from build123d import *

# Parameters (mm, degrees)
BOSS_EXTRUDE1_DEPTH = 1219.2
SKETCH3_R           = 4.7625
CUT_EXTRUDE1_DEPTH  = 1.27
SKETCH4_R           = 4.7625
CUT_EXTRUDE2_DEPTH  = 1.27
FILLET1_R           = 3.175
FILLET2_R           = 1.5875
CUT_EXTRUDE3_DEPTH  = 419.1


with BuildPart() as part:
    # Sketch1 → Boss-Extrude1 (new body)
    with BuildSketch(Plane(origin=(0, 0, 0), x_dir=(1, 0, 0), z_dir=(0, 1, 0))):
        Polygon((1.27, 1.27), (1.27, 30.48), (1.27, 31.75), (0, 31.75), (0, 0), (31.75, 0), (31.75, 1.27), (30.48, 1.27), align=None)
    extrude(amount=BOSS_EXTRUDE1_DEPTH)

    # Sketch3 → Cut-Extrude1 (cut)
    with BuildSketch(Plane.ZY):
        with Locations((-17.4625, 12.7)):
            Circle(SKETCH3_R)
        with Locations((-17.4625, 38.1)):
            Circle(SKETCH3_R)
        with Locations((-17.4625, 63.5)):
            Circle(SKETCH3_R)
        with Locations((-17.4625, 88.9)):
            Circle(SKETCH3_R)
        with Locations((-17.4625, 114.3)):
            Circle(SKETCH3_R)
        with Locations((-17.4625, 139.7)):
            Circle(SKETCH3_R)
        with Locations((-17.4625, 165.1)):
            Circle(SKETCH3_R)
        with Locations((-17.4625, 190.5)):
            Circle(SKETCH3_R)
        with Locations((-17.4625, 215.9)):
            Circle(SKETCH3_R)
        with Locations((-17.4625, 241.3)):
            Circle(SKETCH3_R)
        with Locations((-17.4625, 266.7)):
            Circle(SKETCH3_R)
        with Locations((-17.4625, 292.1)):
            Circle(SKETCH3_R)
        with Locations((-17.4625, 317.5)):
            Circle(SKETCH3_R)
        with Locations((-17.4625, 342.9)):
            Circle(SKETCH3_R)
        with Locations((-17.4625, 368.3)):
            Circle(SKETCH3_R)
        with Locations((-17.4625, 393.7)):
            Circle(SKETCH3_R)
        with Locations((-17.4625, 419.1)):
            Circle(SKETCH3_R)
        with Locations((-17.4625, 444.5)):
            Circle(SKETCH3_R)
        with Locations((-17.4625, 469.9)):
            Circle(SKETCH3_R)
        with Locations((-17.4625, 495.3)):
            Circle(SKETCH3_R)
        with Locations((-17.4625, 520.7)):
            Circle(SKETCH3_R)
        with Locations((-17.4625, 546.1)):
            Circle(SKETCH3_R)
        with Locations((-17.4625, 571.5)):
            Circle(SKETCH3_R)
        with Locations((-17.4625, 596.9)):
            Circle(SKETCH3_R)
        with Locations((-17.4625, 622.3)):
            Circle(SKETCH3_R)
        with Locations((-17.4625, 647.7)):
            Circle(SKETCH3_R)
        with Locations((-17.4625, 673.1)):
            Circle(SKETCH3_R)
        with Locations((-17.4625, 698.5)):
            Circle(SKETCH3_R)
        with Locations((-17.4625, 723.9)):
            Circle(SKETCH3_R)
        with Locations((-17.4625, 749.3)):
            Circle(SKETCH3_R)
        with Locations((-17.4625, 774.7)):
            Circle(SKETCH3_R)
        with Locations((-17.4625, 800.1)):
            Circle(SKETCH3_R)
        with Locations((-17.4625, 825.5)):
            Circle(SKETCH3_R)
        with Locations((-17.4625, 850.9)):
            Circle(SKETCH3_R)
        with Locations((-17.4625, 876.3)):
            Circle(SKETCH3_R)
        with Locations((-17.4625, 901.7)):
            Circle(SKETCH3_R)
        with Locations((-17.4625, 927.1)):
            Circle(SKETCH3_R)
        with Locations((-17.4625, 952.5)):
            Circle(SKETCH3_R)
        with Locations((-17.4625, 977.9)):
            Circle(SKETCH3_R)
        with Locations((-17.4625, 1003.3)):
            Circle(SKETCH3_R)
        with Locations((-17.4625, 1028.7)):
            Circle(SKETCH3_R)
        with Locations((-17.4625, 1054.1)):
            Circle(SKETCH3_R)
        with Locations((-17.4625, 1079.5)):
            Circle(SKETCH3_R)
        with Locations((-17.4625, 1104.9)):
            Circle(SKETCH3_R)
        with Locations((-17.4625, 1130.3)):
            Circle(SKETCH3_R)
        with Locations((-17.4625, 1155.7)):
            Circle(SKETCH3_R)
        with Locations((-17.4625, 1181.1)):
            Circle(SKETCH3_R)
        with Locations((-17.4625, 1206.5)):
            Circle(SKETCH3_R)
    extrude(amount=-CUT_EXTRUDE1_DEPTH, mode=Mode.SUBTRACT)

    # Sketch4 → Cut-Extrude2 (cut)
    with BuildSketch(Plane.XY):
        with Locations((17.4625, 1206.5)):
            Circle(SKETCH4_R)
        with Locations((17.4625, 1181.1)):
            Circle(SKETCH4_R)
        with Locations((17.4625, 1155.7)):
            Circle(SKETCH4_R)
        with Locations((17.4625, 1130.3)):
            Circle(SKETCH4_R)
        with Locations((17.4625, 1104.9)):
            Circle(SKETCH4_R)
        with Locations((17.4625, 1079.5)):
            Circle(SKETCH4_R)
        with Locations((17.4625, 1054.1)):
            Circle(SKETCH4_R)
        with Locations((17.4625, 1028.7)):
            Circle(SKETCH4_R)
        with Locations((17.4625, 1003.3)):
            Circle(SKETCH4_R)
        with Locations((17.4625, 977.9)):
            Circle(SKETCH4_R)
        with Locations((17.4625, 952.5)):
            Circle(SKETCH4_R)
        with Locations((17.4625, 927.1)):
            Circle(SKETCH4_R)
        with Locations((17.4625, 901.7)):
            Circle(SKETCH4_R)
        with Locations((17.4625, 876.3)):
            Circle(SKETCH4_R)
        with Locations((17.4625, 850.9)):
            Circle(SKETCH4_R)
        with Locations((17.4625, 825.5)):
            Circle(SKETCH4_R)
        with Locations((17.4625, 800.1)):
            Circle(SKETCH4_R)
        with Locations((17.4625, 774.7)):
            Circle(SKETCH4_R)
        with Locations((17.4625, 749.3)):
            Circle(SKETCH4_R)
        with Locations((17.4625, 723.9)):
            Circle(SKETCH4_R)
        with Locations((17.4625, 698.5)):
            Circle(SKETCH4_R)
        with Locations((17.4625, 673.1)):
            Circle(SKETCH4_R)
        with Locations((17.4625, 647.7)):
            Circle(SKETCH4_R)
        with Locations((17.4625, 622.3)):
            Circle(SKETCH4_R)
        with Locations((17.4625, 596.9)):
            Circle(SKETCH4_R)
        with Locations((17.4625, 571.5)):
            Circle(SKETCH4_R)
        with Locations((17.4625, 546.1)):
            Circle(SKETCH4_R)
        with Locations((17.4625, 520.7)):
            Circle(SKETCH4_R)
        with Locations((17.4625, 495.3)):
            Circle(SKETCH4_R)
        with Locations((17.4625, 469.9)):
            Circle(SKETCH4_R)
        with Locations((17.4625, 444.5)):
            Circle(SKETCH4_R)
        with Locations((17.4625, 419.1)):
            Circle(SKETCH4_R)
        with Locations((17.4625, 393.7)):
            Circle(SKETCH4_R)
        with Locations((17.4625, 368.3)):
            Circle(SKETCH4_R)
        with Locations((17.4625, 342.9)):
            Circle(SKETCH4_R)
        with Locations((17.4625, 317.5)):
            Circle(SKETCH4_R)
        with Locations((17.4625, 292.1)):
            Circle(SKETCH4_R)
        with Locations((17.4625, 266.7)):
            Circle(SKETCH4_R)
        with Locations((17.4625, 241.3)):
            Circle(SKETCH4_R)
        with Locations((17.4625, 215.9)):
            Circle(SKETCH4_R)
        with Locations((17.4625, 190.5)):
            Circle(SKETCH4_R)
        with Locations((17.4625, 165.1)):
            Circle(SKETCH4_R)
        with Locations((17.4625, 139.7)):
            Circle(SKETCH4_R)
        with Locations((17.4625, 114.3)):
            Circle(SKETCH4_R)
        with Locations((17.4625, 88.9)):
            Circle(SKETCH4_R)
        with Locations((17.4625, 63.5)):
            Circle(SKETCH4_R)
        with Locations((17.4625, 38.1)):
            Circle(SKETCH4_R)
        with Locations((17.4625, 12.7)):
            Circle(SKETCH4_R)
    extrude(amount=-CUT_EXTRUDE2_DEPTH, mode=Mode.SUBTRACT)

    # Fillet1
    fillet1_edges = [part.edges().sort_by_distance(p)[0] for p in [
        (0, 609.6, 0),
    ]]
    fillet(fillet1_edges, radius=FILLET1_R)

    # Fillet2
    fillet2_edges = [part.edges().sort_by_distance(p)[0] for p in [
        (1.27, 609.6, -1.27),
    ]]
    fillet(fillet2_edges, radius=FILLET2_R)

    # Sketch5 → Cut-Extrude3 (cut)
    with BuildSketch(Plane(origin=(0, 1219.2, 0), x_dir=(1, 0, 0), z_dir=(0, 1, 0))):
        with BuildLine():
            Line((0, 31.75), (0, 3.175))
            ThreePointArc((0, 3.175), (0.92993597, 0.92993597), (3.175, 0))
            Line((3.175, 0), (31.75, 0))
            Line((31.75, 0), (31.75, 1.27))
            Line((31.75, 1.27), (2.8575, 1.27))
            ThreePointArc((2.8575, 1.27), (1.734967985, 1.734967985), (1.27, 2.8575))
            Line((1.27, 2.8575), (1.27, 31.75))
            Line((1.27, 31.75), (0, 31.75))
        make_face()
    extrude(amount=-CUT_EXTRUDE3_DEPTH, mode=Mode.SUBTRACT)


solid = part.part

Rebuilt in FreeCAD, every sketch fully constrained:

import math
import FreeCAD as App
import Part
import Sketcher

V = App.Vector
Q = App.Units.Quantity


def edges_at(feature, points):
    """Names of the edges that pass closest to the given points."""
    edges = feature.Shape.Edges
    near = lambda p: min(range(len(edges)), key=lambda i: edges[i].distToShape(Part.Vertex(*p))[0])
    return sorted({f"Edge{near(p) + 1}" for p in points})

doc = App.newDocument("Part")
params = doc.addObject("Spreadsheet::Sheet", "Params")
for row, (alias, value) in enumerate([
    ("sketch1_width", "1.2 in"),
    ("sketch1_width2", "0.05 in"),
    ("pad1_length", "48 in"),
    ("sketch2_diameter", "0.375 in"),
    ("pocket1_length", "0.05 in"),
    ("sketch3_diameter", "0.375 in"),
    ("pocket2_length", "0.05 in"),
    ("fillet_radius", "0.125 in"),
    ("fillet2_radius", "0.0625 in"),
    ("sketch4_radius", "0.125 in"),
    ("sketch4_radius2", "0.0625 in"),
    ("sketch4_width", "0.05 in"),
    ("pocket3_length", "16.5 in"),
], start=1):
    params.set(f"A{row}", alias)
    params.set(f"B{row}", "=" + value)
    params.setAlias(f"B{row}", alias)

body = doc.addObject("PartDesign::Body", "Body")

# Sketch on XZ plane
sketch1 = body.newObject("Sketcher::SketchObject", "Sketch")
sketch1.AttachmentSupport = (doc.getObject("XZ_Plane"), [""])
sketch1.MapMode = "FlatFace"
sketch1.addGeometry([
    Part.LineSegment(V(1.3, -1.3, 0), V(1.3, -31.8, 0)),  # 0
    Part.LineSegment(V(1.3, -31.8, 0), V(0, -31.8, 0)),  # 1
    Part.LineSegment(V(0, -31.8, 0), V(0, 0, 0)),  # 2
    Part.LineSegment(V(0, 0, 0), V(31.8, 0, 0)),  # 3
    Part.LineSegment(V(31.8, 0, 0), V(31.8, -1.3, 0)),  # 4
    Part.LineSegment(V(31.8, -1.3, 0), V(1.3, -1.3, 0)),  # 5
], False)
sketch1.addConstraint([
    Sketcher.Constraint("Coincident", 0, 2, 1, 1),
    Sketcher.Constraint("Coincident", 1, 2, 2, 1),
    Sketcher.Constraint("Coincident", 2, 2, 3, 1),
    Sketcher.Constraint("Coincident", 3, 2, 4, 1),
    Sketcher.Constraint("Coincident", 4, 2, 5, 1),
    Sketcher.Constraint("Coincident", 5, 2, 0, 1),
    Sketcher.Constraint("Vertical", 0),
    Sketcher.Constraint("Horizontal", 1),
    Sketcher.Constraint("Vertical", 2),
    Sketcher.Constraint("Horizontal", 3),
    Sketcher.Constraint("Vertical", 4),
    Sketcher.Constraint("Horizontal", 5),
    Sketcher.Constraint("Coincident", 2, 2, -1, 1),
    Sketcher.Constraint("Equal", 5, 0),
    Sketcher.Constraint("Equal", 3, 2),
    Sketcher.Constraint("DistanceX", 5, 2, 5, 1, Q("1.2 in")),
    Sketcher.Constraint("DistanceX", 1, 2, 1, 1, Q("0.05 in")),
])
sketch1.setExpression("Constraints[15]", "Params.sketch1_width")
sketch1.setExpression("Constraints[16]", "Params.sketch1_width2")
pad1 = body.newObject("PartDesign::Pad", "Pad")
pad1.Profile = sketch1
pad1.setExpression("Length", "Params.pad1_length")
pad1.Reversed = True

# Sketch on YZ plane
sketch2 = body.newObject("Sketcher::SketchObject", "Sketch001")
sketch2.AttachmentSupport = (doc.getObject("YZ_Plane"), [""])
sketch2.MapMode = "FlatFace"
sketch2.addGeometry([
    Part.Circle(V(12.7, -17.5, 0), V(0, 0, 1), 4.8),  # 0
    Part.Circle(V(38.1, -17.5, 0), V(0, 0, 1), 4.8),  # 1
    Part.Circle(V(63.5, -17.5, 0), V(0, 0, 1), 4.8),  # 2
    Part.Circle(V(88.9, -17.5, 0), V(0, 0, 1), 4.8),  # 3
    Part.Circle(V(114.3, -17.5, 0), V(0, 0, 1), 4.8),  # 4
    Part.Circle(V(139.7, -17.5, 0), V(0, 0, 1), 4.8),  # 5
    Part.Circle(V(165.1, -17.5, 0), V(0, 0, 1), 4.8),  # 6
    Part.Circle(V(190.5, -17.5, 0), V(0, 0, 1), 4.8),  # 7
    Part.Circle(V(215.9, -17.5, 0), V(0, 0, 1), 4.8),  # 8
    Part.Circle(V(241.3, -17.5, 0), V(0, 0, 1), 4.8),  # 9
    Part.Circle(V(266.7, -17.5, 0), V(0, 0, 1), 4.8),  # 10
    Part.Circle(V(292.1, -17.5, 0), V(0, 0, 1), 4.8),  # 11
    Part.Circle(V(317.5, -17.5, 0), V(0, 0, 1), 4.8),  # 12
    Part.Circle(V(342.9, -17.5, 0), V(0, 0, 1), 4.8),  # 13
    Part.Circle(V(368.3, -17.5, 0), V(0, 0, 1), 4.8),  # 14
    Part.Circle(V(393.7, -17.5, 0), V(0, 0, 1), 4.8),  # 15
    Part.Circle(V(419.1, -17.5, 0), V(0, 0, 1), 4.8),  # 16
    Part.Circle(V(444.5, -17.5, 0), V(0, 0, 1), 4.8),  # 17
    Part.Circle(V(469.9, -17.5, 0), V(0, 0, 1), 4.8),  # 18
    Part.Circle(V(495.3, -17.5, 0), V(0, 0, 1), 4.8),  # 19
    Part.Circle(V(520.7, -17.5, 0), V(0, 0, 1), 4.8),  # 20
    Part.Circle(V(546.1, -17.5, 0), V(0, 0, 1), 4.8),  # 21
    Part.Circle(V(571.5, -17.5, 0), V(0, 0, 1), 4.8),  # 22
    Part.Circle(V(596.9, -17.5, 0), V(0, 0, 1), 4.8),  # 23
    Part.Circle(V(622.3, -17.5, 0), V(0, 0, 1), 4.8),  # 24
    Part.Circle(V(647.7, -17.5, 0), V(0, 0, 1), 4.8),  # 25
    Part.Circle(V(673.1, -17.5, 0), V(0, 0, 1), 4.8),  # 26
    Part.Circle(V(698.5, -17.5, 0), V(0, 0, 1), 4.8),  # 27
    Part.Circle(V(723.9, -17.5, 0), V(0, 0, 1), 4.8),  # 28
    Part.Circle(V(749.3, -17.5, 0), V(0, 0, 1), 4.8),  # 29
    Part.Circle(V(774.7, -17.5, 0), V(0, 0, 1), 4.8),  # 30
    Part.Circle(V(800.1, -17.5, 0), V(0, 0, 1), 4.8),  # 31
    Part.Circle(V(825.5, -17.5, 0), V(0, 0, 1), 4.8),  # 32
    Part.Circle(V(850.9, -17.5, 0), V(0, 0, 1), 4.8),  # 33
    Part.Circle(V(876.3, -17.5, 0), V(0, 0, 1), 4.8),  # 34
    Part.Circle(V(901.7, -17.5, 0), V(0, 0, 1), 4.8),  # 35
    Part.Circle(V(927.1, -17.5, 0), V(0, 0, 1), 4.8),  # 36
    Part.Circle(V(952.5, -17.5, 0), V(0, 0, 1), 4.8),  # 37
    Part.Circle(V(977.9, -17.5, 0), V(0, 0, 1), 4.8),  # 38
    Part.Circle(V(1003.3, -17.5, 0), V(0, 0, 1), 4.8),  # 39
    Part.Circle(V(1028.7, -17.5, 0), V(0, 0, 1), 4.8),  # 40
    Part.Circle(V(1054.1, -17.5, 0), V(0, 0, 1), 4.8),  # 41
    Part.Circle(V(1079.5, -17.5, 0), V(0, 0, 1), 4.8),  # 42
    Part.Circle(V(1104.9, -17.5, 0), V(0, 0, 1), 4.8),  # 43
    Part.Circle(V(1130.3, -17.5, 0), V(0, 0, 1), 4.8),  # 44
    Part.Circle(V(1155.7, -17.5, 0), V(0, 0, 1), 4.8),  # 45
    Part.Circle(V(1181.1, -17.5, 0), V(0, 0, 1), 4.8),  # 46
    Part.Circle(V(1206.5, -17.5, 0), V(0, 0, 1), 4.8),  # 47
], False)
sketch2.addConstraint([
    Sketcher.Constraint("Equal", 0, 1),
    Sketcher.Constraint("Equal", 1, 2),
    Sketcher.Constraint("Equal", 2, 3),
    Sketcher.Constraint("Equal", 3, 4),
    Sketcher.Constraint("Equal", 4, 5),
    Sketcher.Constraint("Equal", 5, 6),
    Sketcher.Constraint("Equal", 6, 7),
    Sketcher.Constraint("Equal", 7, 8),
    Sketcher.Constraint("Equal", 8, 9),
    Sketcher.Constraint("Equal", 9, 10),
    Sketcher.Constraint("Equal", 10, 11),
    Sketcher.Constraint("Equal", 11, 12),
    Sketcher.Constraint("Equal", 12, 13),
    Sketcher.Constraint("Equal", 13, 14),
    Sketcher.Constraint("Equal", 14, 15),
    Sketcher.Constraint("Equal", 15, 16),
    Sketcher.Constraint("Equal", 16, 17),
    Sketcher.Constraint("Equal", 17, 18),
    Sketcher.Constraint("Equal", 18, 19),
    Sketcher.Constraint("Equal", 19, 20),
    Sketcher.Constraint("Equal", 20, 21),
    Sketcher.Constraint("Equal", 21, 22),
    Sketcher.Constraint("Equal", 22, 23),
    Sketcher.Constraint("Equal", 23, 24),
    Sketcher.Constraint("Equal", 24, 25),
    Sketcher.Constraint("Equal", 25, 26),
    Sketcher.Constraint("Equal", 26, 27),
    Sketcher.Constraint("Equal", 27, 28),
    Sketcher.Constraint("Equal", 28, 29),
    Sketcher.Constraint("Equal", 29, 30),
    Sketcher.Constraint("Equal", 30, 31),
    Sketcher.Constraint("Equal", 31, 32),
    Sketcher.Constraint("Equal", 32, 33),
    Sketcher.Constraint("Equal", 33, 34),
    Sketcher.Constraint("Equal", 34, 35),
    Sketcher.Constraint("Equal", 35, 36),
    Sketcher.Constraint("Equal", 36, 37),
    Sketcher.Constraint("Equal", 37, 38),
    Sketcher.Constraint("Equal", 38, 39),
    Sketcher.Constraint("Equal", 39, 40),
    Sketcher.Constraint("Equal", 40, 41),
    Sketcher.Constraint("Equal", 41, 42),
    Sketcher.Constraint("Equal", 42, 43),
    Sketcher.Constraint("Equal", 43, 44),
    Sketcher.Constraint("Equal", 44, 45),
    Sketcher.Constraint("Equal", 45, 46),
    Sketcher.Constraint("Equal", 46, 47),
    Sketcher.Constraint("Horizontal", 0, 3, 1, 3),
    Sketcher.Constraint("Horizontal", 1, 3, 2, 3),
    Sketcher.Constraint("Horizontal", 2, 3, 3, 3),
    Sketcher.Constraint("Horizontal", 3, 3, 4, 3),
    Sketcher.Constraint("Horizontal", 4, 3, 5, 3),
    Sketcher.Constraint("Horizontal", 5, 3, 6, 3),
    Sketcher.Constraint("Horizontal", 6, 3, 7, 3),
    Sketcher.Constraint("Horizontal", 7, 3, 8, 3),
    Sketcher.Constraint("Horizontal", 8, 3, 9, 3),
    Sketcher.Constraint("Horizontal", 9, 3, 10, 3),
    Sketcher.Constraint("Horizontal", 10, 3, 11, 3),
    Sketcher.Constraint("Horizontal", 11, 3, 12, 3),
    Sketcher.Constraint("Horizontal", 12, 3, 13, 3),
    Sketcher.Constraint("Horizontal", 13, 3, 14, 3),
    Sketcher.Constraint("Horizontal", 14, 3, 15, 3),
    Sketcher.Constraint("Horizontal", 15, 3, 16, 3),
    Sketcher.Constraint("Horizontal", 16, 3, 17, 3),
    Sketcher.Constraint("Horizontal", 17, 3, 18, 3),
    Sketcher.Constraint("Horizontal", 18, 3, 19, 3),
    Sketcher.Constraint("Horizontal", 19, 3, 20, 3),
    Sketcher.Constraint("Horizontal", 20, 3, 21, 3),
    Sketcher.Constraint("Horizontal", 21, 3, 22, 3),
    Sketcher.Constraint("Horizontal", 22, 3, 23, 3),
    Sketcher.Constraint("Horizontal", 23, 3, 24, 3),
    Sketcher.Constraint("Horizontal", 24, 3, 25, 3),
    Sketcher.Constraint("Horizontal", 25, 3, 26, 3),
    Sketcher.Constraint("Horizontal", 26, 3, 27, 3),
    Sketcher.Constraint("Horizontal", 27, 3, 28, 3),
    Sketcher.Constraint("Horizontal", 28, 3, 29, 3),
    Sketcher.Constraint("Horizontal", 29, 3, 30, 3),
    Sketcher.Constraint("Horizontal", 30, 3, 31, 3),
    Sketcher.Constraint("Horizontal", 31, 3, 32, 3),
    Sketcher.Constraint("Horizontal", 32, 3, 33, 3),
    Sketcher.Constraint("Horizontal", 33, 3, 34, 3),
    Sketcher.Constraint("Horizontal", 34, 3, 35, 3),
    Sketcher.Constraint("Horizontal", 35, 3, 36, 3),
    Sketcher.Constraint("Horizontal", 36, 3, 37, 3),
    Sketcher.Constraint("Horizontal", 37, 3, 38, 3),
    Sketcher.Constraint("Horizontal", 38, 3, 39, 3),
    Sketcher.Constraint("Horizontal", 39, 3, 40, 3),
    Sketcher.Constraint("Horizontal", 40, 3, 41, 3),
    Sketcher.Constraint("Horizontal", 41, 3, 42, 3),
    Sketcher.Constraint("Horizontal", 42, 3, 43, 3),
    Sketcher.Constraint("Horizontal", 43, 3, 44, 3),
    Sketcher.Constraint("Horizontal", 44, 3, 45, 3),
    Sketcher.Constraint("Horizontal", 45, 3, 46, 3),
    Sketcher.Constraint("Horizontal", 46, 3, 47, 3),
    Sketcher.Constraint("Diameter", 0, Q("0.375 in")),
    Sketcher.Constraint("DistanceX", 0, 3, 1, 3, Q("1 in")),
    Sketcher.Constraint("DistanceX", 1, 3, 2, 3, Q("1 in")),
    Sketcher.Constraint("DistanceX", 2, 3, 3, 3, Q("1 in")),
    Sketcher.Constraint("DistanceX", 3, 3, 4, 3, Q("1 in")),
    Sketcher.Constraint("DistanceX", 4, 3, 5, 3, Q("1 in")),
    Sketcher.Constraint("DistanceX", 5, 3, 6, 3, Q("1 in")),
    Sketcher.Constraint("DistanceX", 6, 3, 7, 3, Q("1 in")),
    Sketcher.Constraint("DistanceX", 7, 3, 8, 3, Q("1 in")),
    Sketcher.Constraint("DistanceX", 8, 3, 9, 3, Q("1 in")),
    Sketcher.Constraint("DistanceX", 9, 3, 10, 3, Q("1 in")),
    Sketcher.Constraint("DistanceX", 10, 3, 11, 3, Q("1 in")),
    Sketcher.Constraint("DistanceX", 11, 3, 12, 3, Q("1 in")),
    Sketcher.Constraint("DistanceX", 12, 3, 13, 3, Q("1 in")),
    Sketcher.Constraint("DistanceX", 13, 3, 14, 3, Q("1 in")),
    Sketcher.Constraint("DistanceX", 14, 3, 15, 3, Q("1 in")),
    Sketcher.Constraint("DistanceX", 15, 3, 16, 3, Q("1 in")),
    Sketcher.Constraint("DistanceX", 16, 3, 17, 3, Q("1 in")),
    Sketcher.Constraint("DistanceX", 17, 3, 18, 3, Q("1 in")),
    Sketcher.Constraint("DistanceX", 18, 3, 19, 3, Q("1 in")),
    Sketcher.Constraint("DistanceX", 19, 3, 20, 3, Q("1 in")),
    Sketcher.Constraint("DistanceX", 20, 3, 21, 3, Q("1 in")),
    Sketcher.Constraint("DistanceX", 21, 3, 22, 3, Q("1 in")),
    Sketcher.Constraint("DistanceX", 22, 3, 23, 3, Q("1 in")),
    Sketcher.Constraint("DistanceX", 23, 3, 24, 3, Q("1 in")),
    Sketcher.Constraint("DistanceX", 24, 3, 25, 3, Q("1 in")),
    Sketcher.Constraint("DistanceX", 25, 3, 26, 3, Q("1 in")),
    Sketcher.Constraint("DistanceX", 26, 3, 27, 3, Q("1 in")),
    Sketcher.Constraint("DistanceX", 27, 3, 28, 3, Q("1 in")),
    Sketcher.Constraint("DistanceX", 28, 3, 29, 3, Q("1 in")),
    Sketcher.Constraint("DistanceX", 29, 3, 30, 3, Q("1 in")),
    Sketcher.Constraint("DistanceX", 30, 3, 31, 3, Q("1 in")),
    Sketcher.Constraint("DistanceX", 31, 3, 32, 3, Q("1 in")),
    Sketcher.Constraint("DistanceX", 32, 3, 33, 3, Q("1 in")),
    Sketcher.Constraint("DistanceX", 33, 3, 34, 3, Q("1 in")),
    Sketcher.Constraint("DistanceX", 34, 3, 35, 3, Q("1 in")),
    Sketcher.Constraint("DistanceX", 35, 3, 36, 3, Q("1 in")),
    Sketcher.Constraint("DistanceX", 36, 3, 37, 3, Q("1 in")),
    Sketcher.Constraint("DistanceX", 37, 3, 38, 3, Q("1 in")),
    Sketcher.Constraint("DistanceX", 38, 3, 39, 3, Q("1 in")),
    Sketcher.Constraint("DistanceX", 39, 3, 40, 3, Q("1 in")),
    Sketcher.Constraint("DistanceX", 40, 3, 41, 3, Q("1 in")),
    Sketcher.Constraint("DistanceX", 41, 3, 42, 3, Q("1 in")),
    Sketcher.Constraint("DistanceX", 42, 3, 43, 3, Q("1 in")),
    Sketcher.Constraint("DistanceX", 43, 3, 44, 3, Q("1 in")),
    Sketcher.Constraint("DistanceX", 44, 3, 45, 3, Q("1 in")),
    Sketcher.Constraint("DistanceX", 45, 3, 46, 3, Q("1 in")),
    Sketcher.Constraint("DistanceX", 46, 3, 47, 3, Q("1 in")),
    Sketcher.Constraint("DistanceX", -1, 1, 0, 3, Q("0.5 in")),
    Sketcher.Constraint("DistanceY", 0, 3, -1, 1, Q("0.6875 in")),
])
sketch2.setExpression("Constraints[94]", "Params.sketch2_diameter")
pocket1 = body.newObject("PartDesign::Pocket", "Pocket")
pocket1.Profile = sketch2
pocket1.setExpression("Length", "Params.pocket1_length")
pocket1.Reversed = True

# Sketch on XY plane
sketch3 = body.newObject("Sketcher::SketchObject", "Sketch002")
sketch3.AttachmentSupport = (doc.getObject("XY_Plane"), [""])
sketch3.MapMode = "FlatFace"
sketch3.addGeometry([
    Part.Circle(V(17.5, 1206.5, 0), V(0, 0, 1), 4.8),  # 0
    Part.Circle(V(17.5, 1181.1, 0), V(0, 0, 1), 4.8),  # 1
    Part.Circle(V(17.5, 1155.7, 0), V(0, 0, 1), 4.8),  # 2
    Part.Circle(V(17.5, 1130.3, 0), V(0, 0, 1), 4.8),  # 3
    Part.Circle(V(17.5, 1104.9, 0), V(0, 0, 1), 4.8),  # 4
    Part.Circle(V(17.5, 1079.5, 0), V(0, 0, 1), 4.8),  # 5
    Part.Circle(V(17.5, 1054.1, 0), V(0, 0, 1), 4.8),  # 6
    Part.Circle(V(17.5, 1028.7, 0), V(0, 0, 1), 4.8),  # 7
    Part.Circle(V(17.5, 1003.3, 0), V(0, 0, 1), 4.8),  # 8
    Part.Circle(V(17.5, 977.9, 0), V(0, 0, 1), 4.8),  # 9
    Part.Circle(V(17.5, 952.5, 0), V(0, 0, 1), 4.8),  # 10
    Part.Circle(V(17.5, 927.1, 0), V(0, 0, 1), 4.8),  # 11
    Part.Circle(V(17.5, 901.7, 0), V(0, 0, 1), 4.8),  # 12
    Part.Circle(V(17.5, 876.3, 0), V(0, 0, 1), 4.8),  # 13
    Part.Circle(V(17.5, 850.9, 0), V(0, 0, 1), 4.8),  # 14
    Part.Circle(V(17.5, 825.5, 0), V(0, 0, 1), 4.8),  # 15
    Part.Circle(V(17.5, 800.1, 0), V(0, 0, 1), 4.8),  # 16
    Part.Circle(V(17.5, 774.7, 0), V(0, 0, 1), 4.8),  # 17
    Part.Circle(V(17.5, 749.3, 0), V(0, 0, 1), 4.8),  # 18
    Part.Circle(V(17.5, 723.9, 0), V(0, 0, 1), 4.8),  # 19
    Part.Circle(V(17.5, 698.5, 0), V(0, 0, 1), 4.8),  # 20
    Part.Circle(V(17.5, 673.1, 0), V(0, 0, 1), 4.8),  # 21
    Part.Circle(V(17.5, 647.7, 0), V(0, 0, 1), 4.8),  # 22
    Part.Circle(V(17.5, 622.3, 0), V(0, 0, 1), 4.8),  # 23
    Part.Circle(V(17.5, 596.9, 0), V(0, 0, 1), 4.8),  # 24
    Part.Circle(V(17.5, 571.5, 0), V(0, 0, 1), 4.8),  # 25
    Part.Circle(V(17.5, 546.1, 0), V(0, 0, 1), 4.8),  # 26
    Part.Circle(V(17.5, 520.7, 0), V(0, 0, 1), 4.8),  # 27
    Part.Circle(V(17.5, 495.3, 0), V(0, 0, 1), 4.8),  # 28
    Part.Circle(V(17.5, 469.9, 0), V(0, 0, 1), 4.8),  # 29
    Part.Circle(V(17.5, 444.5, 0), V(0, 0, 1), 4.8),  # 30
    Part.Circle(V(17.5, 419.1, 0), V(0, 0, 1), 4.8),  # 31
    Part.Circle(V(17.5, 393.7, 0), V(0, 0, 1), 4.8),  # 32
    Part.Circle(V(17.5, 368.3, 0), V(0, 0, 1), 4.8),  # 33
    Part.Circle(V(17.5, 342.9, 0), V(0, 0, 1), 4.8),  # 34
    Part.Circle(V(17.5, 317.5, 0), V(0, 0, 1), 4.8),  # 35
    Part.Circle(V(17.5, 292.1, 0), V(0, 0, 1), 4.8),  # 36
    Part.Circle(V(17.5, 266.7, 0), V(0, 0, 1), 4.8),  # 37
    Part.Circle(V(17.5, 241.3, 0), V(0, 0, 1), 4.8),  # 38
    Part.Circle(V(17.5, 215.9, 0), V(0, 0, 1), 4.8),  # 39
    Part.Circle(V(17.5, 190.5, 0), V(0, 0, 1), 4.8),  # 40
    Part.Circle(V(17.5, 165.1, 0), V(0, 0, 1), 4.8),  # 41
    Part.Circle(V(17.5, 139.7, 0), V(0, 0, 1), 4.8),  # 42
    Part.Circle(V(17.5, 114.3, 0), V(0, 0, 1), 4.8),  # 43
    Part.Circle(V(17.5, 88.9, 0), V(0, 0, 1), 4.8),  # 44
    Part.Circle(V(17.5, 63.5, 0), V(0, 0, 1), 4.8),  # 45
    Part.Circle(V(17.5, 38.1, 0), V(0, 0, 1), 4.8),  # 46
    Part.Circle(V(17.5, 12.7, 0), V(0, 0, 1), 4.8),  # 47
], False)
sketch3.addConstraint([
    Sketcher.Constraint("Equal", 0, 1),
    Sketcher.Constraint("Equal", 1, 2),
    Sketcher.Constraint("Equal", 2, 3),
    Sketcher.Constraint("Equal", 3, 4),
    Sketcher.Constraint("Equal", 4, 5),
    Sketcher.Constraint("Equal", 5, 6),
    Sketcher.Constraint("Equal", 6, 7),
    Sketcher.Constraint("Equal", 7, 8),
    Sketcher.Constraint("Equal", 8, 9),
    Sketcher.Constraint("Equal", 9, 10),
    Sketcher.Constraint("Equal", 10, 11),
    Sketcher.Constraint("Equal", 11, 12),
    Sketcher.Constraint("Equal", 12, 13),
    Sketcher.Constraint("Equal", 13, 14),
    Sketcher.Constraint("Equal", 14, 15),
    Sketcher.Constraint("Equal", 15, 16),
    Sketcher.Constraint("Equal", 16, 17),
    Sketcher.Constraint("Equal", 17, 18),
    Sketcher.Constraint("Equal", 18, 19),
    Sketcher.Constraint("Equal", 19, 20),
    Sketcher.Constraint("Equal", 20, 21),
    Sketcher.Constraint("Equal", 21, 22),
    Sketcher.Constraint("Equal", 22, 23),
    Sketcher.Constraint("Equal", 23, 24),
    Sketcher.Constraint("Equal", 24, 25),
    Sketcher.Constraint("Equal", 25, 26),
    Sketcher.Constraint("Equal", 26, 27),
    Sketcher.Constraint("Equal", 27, 28),
    Sketcher.Constraint("Equal", 28, 29),
    Sketcher.Constraint("Equal", 29, 30),
    Sketcher.Constraint("Equal", 30, 31),
    Sketcher.Constraint("Equal", 31, 32),
    Sketcher.Constraint("Equal", 32, 33),
    Sketcher.Constraint("Equal", 33, 34),
    Sketcher.Constraint("Equal", 34, 35),
    Sketcher.Constraint("Equal", 35, 36),
    Sketcher.Constraint("Equal", 36, 37),
    Sketcher.Constraint("Equal", 37, 38),
    Sketcher.Constraint("Equal", 38, 39),
    Sketcher.Constraint("Equal", 39, 40),
    Sketcher.Constraint("Equal", 40, 41),
    Sketcher.Constraint("Equal", 41, 42),
    Sketcher.Constraint("Equal", 42, 43),
    Sketcher.Constraint("Equal", 43, 44),
    Sketcher.Constraint("Equal", 44, 45),
    Sketcher.Constraint("Equal", 45, 46),
    Sketcher.Constraint("Equal", 46, 47),
    Sketcher.Constraint("Vertical", 0, 3, 1, 3),
    Sketcher.Constraint("Vertical", 1, 3, 2, 3),
    Sketcher.Constraint("Vertical", 2, 3, 3, 3),
    Sketcher.Constraint("Vertical", 3, 3, 4, 3),
    Sketcher.Constraint("Vertical", 4, 3, 5, 3),
    Sketcher.Constraint("Vertical", 5, 3, 6, 3),
    Sketcher.Constraint("Vertical", 6, 3, 7, 3),
    Sketcher.Constraint("Vertical", 7, 3, 8, 3),
    Sketcher.Constraint("Vertical", 8, 3, 9, 3),
    Sketcher.Constraint("Vertical", 9, 3, 10, 3),
    Sketcher.Constraint("Vertical", 10, 3, 11, 3),
    Sketcher.Constraint("Vertical", 11, 3, 12, 3),
    Sketcher.Constraint("Vertical", 12, 3, 13, 3),
    Sketcher.Constraint("Vertical", 13, 3, 14, 3),
    Sketcher.Constraint("Vertical", 14, 3, 15, 3),
    Sketcher.Constraint("Vertical", 15, 3, 16, 3),
    Sketcher.Constraint("Vertical", 16, 3, 17, 3),
    Sketcher.Constraint("Vertical", 17, 3, 18, 3),
    Sketcher.Constraint("Vertical", 18, 3, 19, 3),
    Sketcher.Constraint("Vertical", 19, 3, 20, 3),
    Sketcher.Constraint("Vertical", 20, 3, 21, 3),
    Sketcher.Constraint("Vertical", 21, 3, 22, 3),
    Sketcher.Constraint("Vertical", 22, 3, 23, 3),
    Sketcher.Constraint("Vertical", 23, 3, 24, 3),
    Sketcher.Constraint("Vertical", 24, 3, 25, 3),
    Sketcher.Constraint("Vertical", 25, 3, 26, 3),
    Sketcher.Constraint("Vertical", 26, 3, 27, 3),
    Sketcher.Constraint("Vertical", 27, 3, 28, 3),
    Sketcher.Constraint("Vertical", 28, 3, 29, 3),
    Sketcher.Constraint("Vertical", 29, 3, 30, 3),
    Sketcher.Constraint("Vertical", 30, 3, 31, 3),
    Sketcher.Constraint("Vertical", 31, 3, 32, 3),
    Sketcher.Constraint("Vertical", 32, 3, 33, 3),
    Sketcher.Constraint("Vertical", 33, 3, 34, 3),
    Sketcher.Constraint("Vertical", 34, 3, 35, 3),
    Sketcher.Constraint("Vertical", 35, 3, 36, 3),
    Sketcher.Constraint("Vertical", 36, 3, 37, 3),
    Sketcher.Constraint("Vertical", 37, 3, 38, 3),
    Sketcher.Constraint("Vertical", 38, 3, 39, 3),
    Sketcher.Constraint("Vertical", 39, 3, 40, 3),
    Sketcher.Constraint("Vertical", 40, 3, 41, 3),
    Sketcher.Constraint("Vertical", 41, 3, 42, 3),
    Sketcher.Constraint("Vertical", 42, 3, 43, 3),
    Sketcher.Constraint("Vertical", 43, 3, 44, 3),
    Sketcher.Constraint("Vertical", 44, 3, 45, 3),
    Sketcher.Constraint("Vertical", 45, 3, 46, 3),
    Sketcher.Constraint("Vertical", 46, 3, 47, 3),
    Sketcher.Constraint("Diameter", 0, Q("0.375 in")),
    Sketcher.Constraint("DistanceY", 1, 3, 0, 3, Q("1 in")),
    Sketcher.Constraint("DistanceY", 2, 3, 1, 3, Q("1 in")),
    Sketcher.Constraint("DistanceY", 3, 3, 2, 3, Q("1 in")),
    Sketcher.Constraint("DistanceY", 4, 3, 3, 3, Q("1 in")),
    Sketcher.Constraint("DistanceY", 5, 3, 4, 3, Q("1 in")),
    Sketcher.Constraint("DistanceY", 6, 3, 5, 3, Q("1 in")),
    Sketcher.Constraint("DistanceY", 7, 3, 6, 3, Q("1 in")),
    Sketcher.Constraint("DistanceY", 8, 3, 7, 3, Q("1 in")),
    Sketcher.Constraint("DistanceY", 9, 3, 8, 3, Q("1 in")),
    Sketcher.Constraint("DistanceY", 10, 3, 9, 3, Q("1 in")),
    Sketcher.Constraint("DistanceY", 11, 3, 10, 3, Q("1 in")),
    Sketcher.Constraint("DistanceY", 12, 3, 11, 3, Q("1 in")),
    Sketcher.Constraint("DistanceY", 13, 3, 12, 3, Q("1 in")),
    Sketcher.Constraint("DistanceY", 14, 3, 13, 3, Q("1 in")),
    Sketcher.Constraint("DistanceY", 15, 3, 14, 3, Q("1 in")),
    Sketcher.Constraint("DistanceY", 16, 3, 15, 3, Q("1 in")),
    Sketcher.Constraint("DistanceY", 17, 3, 16, 3, Q("1 in")),
    Sketcher.Constraint("DistanceY", 18, 3, 17, 3, Q("1 in")),
    Sketcher.Constraint("DistanceY", 19, 3, 18, 3, Q("1 in")),
    Sketcher.Constraint("DistanceY", 20, 3, 19, 3, Q("1 in")),
    Sketcher.Constraint("DistanceY", 21, 3, 20, 3, Q("1 in")),
    Sketcher.Constraint("DistanceY", 22, 3, 21, 3, Q("1 in")),
    Sketcher.Constraint("DistanceY", 23, 3, 22, 3, Q("1 in")),
    Sketcher.Constraint("DistanceY", 24, 3, 23, 3, Q("1 in")),
    Sketcher.Constraint("DistanceY", 25, 3, 24, 3, Q("1 in")),
    Sketcher.Constraint("DistanceY", 26, 3, 25, 3, Q("1 in")),
    Sketcher.Constraint("DistanceY", 27, 3, 26, 3, Q("1 in")),
    Sketcher.Constraint("DistanceY", 28, 3, 27, 3, Q("1 in")),
    Sketcher.Constraint("DistanceY", 29, 3, 28, 3, Q("1 in")),
    Sketcher.Constraint("DistanceY", 30, 3, 29, 3, Q("1 in")),
    Sketcher.Constraint("DistanceY", 31, 3, 30, 3, Q("1 in")),
    Sketcher.Constraint("DistanceY", 32, 3, 31, 3, Q("1 in")),
    Sketcher.Constraint("DistanceY", 33, 3, 32, 3, Q("1 in")),
    Sketcher.Constraint("DistanceY", 34, 3, 33, 3, Q("1 in")),
    Sketcher.Constraint("DistanceY", 35, 3, 34, 3, Q("1 in")),
    Sketcher.Constraint("DistanceY", 36, 3, 35, 3, Q("1 in")),
    Sketcher.Constraint("DistanceY", 37, 3, 36, 3, Q("1 in")),
    Sketcher.Constraint("DistanceY", 38, 3, 37, 3, Q("1 in")),
    Sketcher.Constraint("DistanceY", 39, 3, 38, 3, Q("1 in")),
    Sketcher.Constraint("DistanceY", 40, 3, 39, 3, Q("1 in")),
    Sketcher.Constraint("DistanceY", 41, 3, 40, 3, Q("1 in")),
    Sketcher.Constraint("DistanceY", 42, 3, 41, 3, Q("1 in")),
    Sketcher.Constraint("DistanceY", 43, 3, 42, 3, Q("1 in")),
    Sketcher.Constraint("DistanceY", 44, 3, 43, 3, Q("1 in")),
    Sketcher.Constraint("DistanceY", 45, 3, 44, 3, Q("1 in")),
    Sketcher.Constraint("DistanceY", 46, 3, 45, 3, Q("1 in")),
    Sketcher.Constraint("DistanceY", 47, 3, 46, 3, Q("1 in")),
    Sketcher.Constraint("DistanceY", -1, 1, 0, 3, Q("47.5 in")),
    Sketcher.Constraint("DistanceX", -1, 1, 0, 3, Q("0.6875 in")),
])
sketch3.setExpression("Constraints[94]", "Params.sketch3_diameter")
pocket2 = body.newObject("PartDesign::Pocket", "Pocket001")
pocket2.Profile = sketch3
pocket2.setExpression("Length", "Params.pocket2_length")
doc.recompute()

fillet = body.newObject("PartDesign::Fillet", "Fillet")
fillet.Base = (pocket2, edges_at(pocket2, [(0, 609.6, 0)]))
fillet.setExpression("Radius", "Params.fillet_radius")
doc.recompute()

fillet2 = body.newObject("PartDesign::Fillet", "Fillet001")
fillet2.Base = (fillet, edges_at(fillet, [(1.27, 609.6, -1.27)]))
fillet2.setExpression("Radius", "Params.fillet2_radius")

# Sketch on XZ plane
sketch4 = body.newObject("Sketcher::SketchObject", "Sketch003")
sketch4.AttachmentSupport = (doc.getObject("XZ_Plane"), [""])
sketch4.MapMode = "FlatFace"
sketch4.AttachmentOffset = App.Placement(V(0, 0, -48 * 25.4), App.Rotation())
sketch4.addGeometry([
    Part.LineSegment(V(0, -31.8, 0), V(0, -3.2, 0)),  # 0
    Part.ArcOfCircle(Part.Circle(V(3.2, -3.2, 0), V(0, 0, 1), 3.2), math.radians(90), math.radians(180)),  # 1
    Part.LineSegment(V(3.2, 0, 0), V(31.8, 0, 0)),  # 2
    Part.LineSegment(V(31.8, 0, 0), V(31.8, -1.3, 0)),  # 3
    Part.LineSegment(V(31.8, -1.3, 0), V(2.9, -1.3, 0)),  # 4
    Part.ArcOfCircle(Part.Circle(V(2.9, -2.9, 0), V(0, 0, 1), 1.6), math.radians(90), math.radians(180)),  # 5
    Part.LineSegment(V(1.3, -2.9, 0), V(1.3, -31.8, 0)),  # 6
    Part.LineSegment(V(1.3, -31.8, 0), V(0, -31.8, 0)),  # 7
], False)
sketch4.addConstraint([
    Sketcher.Constraint("Tangent", 0, 2, 1, 2),
    Sketcher.Constraint("Tangent", 1, 1, 2, 1),
    Sketcher.Constraint("Coincident", 2, 2, 3, 1),
    Sketcher.Constraint("Coincident", 3, 2, 4, 1),
    Sketcher.Constraint("Tangent", 4, 2, 5, 1),
    Sketcher.Constraint("Tangent", 5, 2, 6, 1),
    Sketcher.Constraint("Coincident", 6, 2, 7, 1),
    Sketcher.Constraint("Coincident", 7, 2, 0, 1),
    Sketcher.Constraint("Vertical", 0),
    Sketcher.Constraint("Horizontal", 2),
    Sketcher.Constraint("Vertical", 3),
    Sketcher.Constraint("Horizontal", 4),
    Sketcher.Constraint("Vertical", 6),
    Sketcher.Constraint("Horizontal", 7),
    Sketcher.Constraint("PointOnObject", 0, 2, -2),
    Sketcher.Constraint("PointOnObject", 1, 1, -1),
    Sketcher.Constraint("Equal", 2, 0),
    Sketcher.Constraint("Equal", 7, 3),
    Sketcher.Constraint("Radius", 1, Q("0.125 in")),
    Sketcher.Constraint("Radius", 5, Q("0.0625 in")),
    Sketcher.Constraint("DistanceX", 7, 2, 7, 1, Q("0.05 in")),
    Sketcher.Constraint("DistanceY", 6, 2, 4, 2, Q("1.2 in")),
])
sketch4.setExpression("Constraints[18]", "Params.sketch4_radius")
sketch4.setExpression("Constraints[19]", "Params.sketch4_radius2")
sketch4.setExpression("Constraints[20]", "Params.sketch4_width")
pocket3 = body.newObject("PartDesign::Pocket", "Pocket002")
pocket3.Profile = sketch4
pocket3.setExpression("Length", "Params.pocket3_length")
pocket3.Reversed = True

doc.recompute()
